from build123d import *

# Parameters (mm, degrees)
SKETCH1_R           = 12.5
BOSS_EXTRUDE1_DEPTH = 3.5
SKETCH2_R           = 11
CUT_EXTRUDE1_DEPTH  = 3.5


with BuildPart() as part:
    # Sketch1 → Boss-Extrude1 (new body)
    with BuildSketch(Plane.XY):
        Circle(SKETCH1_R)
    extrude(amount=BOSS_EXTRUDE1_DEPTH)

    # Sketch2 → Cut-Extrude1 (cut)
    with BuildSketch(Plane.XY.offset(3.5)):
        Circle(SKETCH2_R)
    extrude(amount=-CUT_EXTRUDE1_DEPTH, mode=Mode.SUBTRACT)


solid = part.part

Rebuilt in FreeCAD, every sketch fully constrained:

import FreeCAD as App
import Part
import Sketcher
from FreeCAD import Vector

doc = App.newDocument("Part")
params = doc.addObject("Spreadsheet::Sheet", "Params")
for row, (alias, value) in enumerate([
    ("sketch1_diameter", "25 mm"),
    ("pad1_length", "3.5 mm"),
    ("sketch2_diameter", "22 mm"),
    ("pocket1_length", "3.5 mm"),
], start=1):
    params.set(f"A{row}", alias)
    params.set(f"B{row}", "=" + value)
    params.setAlias(f"B{row}", alias)

body = doc.addObject("PartDesign::Body", "Body")

# Sketch on XY plane
sketch1 = doc.addObject("Sketcher::SketchObject", "Sketch")
body.addObject(sketch1)
sketch1.AttachmentSupport = (doc.XY_Plane, [""])
sketch1.MapMode = "FlatFace"
sketch1.addGeometry(Part.Circle(Vector(0, 0, 0), Vector(0, 0, 1), 12), False)
sketch1.addConstraint(Sketcher.Constraint("Coincident", 0, 3, -1, 1))
sketch1.addConstraint(Sketcher.Constraint("Diameter", 0, 25.0))
sketch1.setExpression("Constraints[1]", "Params.sketch1_diameter")
pad1 = doc.addObject("PartDesign::Pad", "Pad")
body.addObject(pad1)
pad1.Profile = sketch1
pad1.setExpression("Length", "Params.pad1_length")

# Sketch on XY plane
sketch2 = doc.addObject("Sketcher::SketchObject", "Sketch001")
body.addObject(sketch2)
sketch2.AttachmentSupport = (doc.XY_Plane, [""])
sketch2.MapMode = "FlatFace"
sketch2.AttachmentOffset = App.Placement(Vector(0, 0, 3.5), App.Rotation())
sketch2.addGeometry(Part.Circle(Vector(0, 0, 0), Vector(0, 0, 1), 11), False)
sketch2.addConstraint(Sketcher.Constraint("Coincident", 0, 3, -1, 1))
sketch2.addConstraint(Sketcher.Constraint("Diameter", 0, 22.0))
sketch2.setExpression("Constraints[1]", "Params.sketch2_diameter")
pocket1 = doc.addObject("PartDesign::Pocket", "Pocket")
body.addObject(pocket1)
pocket1.Profile = sketch2
pocket1.setExpression("Length", "Params.pocket1_length")

doc.recompute()
